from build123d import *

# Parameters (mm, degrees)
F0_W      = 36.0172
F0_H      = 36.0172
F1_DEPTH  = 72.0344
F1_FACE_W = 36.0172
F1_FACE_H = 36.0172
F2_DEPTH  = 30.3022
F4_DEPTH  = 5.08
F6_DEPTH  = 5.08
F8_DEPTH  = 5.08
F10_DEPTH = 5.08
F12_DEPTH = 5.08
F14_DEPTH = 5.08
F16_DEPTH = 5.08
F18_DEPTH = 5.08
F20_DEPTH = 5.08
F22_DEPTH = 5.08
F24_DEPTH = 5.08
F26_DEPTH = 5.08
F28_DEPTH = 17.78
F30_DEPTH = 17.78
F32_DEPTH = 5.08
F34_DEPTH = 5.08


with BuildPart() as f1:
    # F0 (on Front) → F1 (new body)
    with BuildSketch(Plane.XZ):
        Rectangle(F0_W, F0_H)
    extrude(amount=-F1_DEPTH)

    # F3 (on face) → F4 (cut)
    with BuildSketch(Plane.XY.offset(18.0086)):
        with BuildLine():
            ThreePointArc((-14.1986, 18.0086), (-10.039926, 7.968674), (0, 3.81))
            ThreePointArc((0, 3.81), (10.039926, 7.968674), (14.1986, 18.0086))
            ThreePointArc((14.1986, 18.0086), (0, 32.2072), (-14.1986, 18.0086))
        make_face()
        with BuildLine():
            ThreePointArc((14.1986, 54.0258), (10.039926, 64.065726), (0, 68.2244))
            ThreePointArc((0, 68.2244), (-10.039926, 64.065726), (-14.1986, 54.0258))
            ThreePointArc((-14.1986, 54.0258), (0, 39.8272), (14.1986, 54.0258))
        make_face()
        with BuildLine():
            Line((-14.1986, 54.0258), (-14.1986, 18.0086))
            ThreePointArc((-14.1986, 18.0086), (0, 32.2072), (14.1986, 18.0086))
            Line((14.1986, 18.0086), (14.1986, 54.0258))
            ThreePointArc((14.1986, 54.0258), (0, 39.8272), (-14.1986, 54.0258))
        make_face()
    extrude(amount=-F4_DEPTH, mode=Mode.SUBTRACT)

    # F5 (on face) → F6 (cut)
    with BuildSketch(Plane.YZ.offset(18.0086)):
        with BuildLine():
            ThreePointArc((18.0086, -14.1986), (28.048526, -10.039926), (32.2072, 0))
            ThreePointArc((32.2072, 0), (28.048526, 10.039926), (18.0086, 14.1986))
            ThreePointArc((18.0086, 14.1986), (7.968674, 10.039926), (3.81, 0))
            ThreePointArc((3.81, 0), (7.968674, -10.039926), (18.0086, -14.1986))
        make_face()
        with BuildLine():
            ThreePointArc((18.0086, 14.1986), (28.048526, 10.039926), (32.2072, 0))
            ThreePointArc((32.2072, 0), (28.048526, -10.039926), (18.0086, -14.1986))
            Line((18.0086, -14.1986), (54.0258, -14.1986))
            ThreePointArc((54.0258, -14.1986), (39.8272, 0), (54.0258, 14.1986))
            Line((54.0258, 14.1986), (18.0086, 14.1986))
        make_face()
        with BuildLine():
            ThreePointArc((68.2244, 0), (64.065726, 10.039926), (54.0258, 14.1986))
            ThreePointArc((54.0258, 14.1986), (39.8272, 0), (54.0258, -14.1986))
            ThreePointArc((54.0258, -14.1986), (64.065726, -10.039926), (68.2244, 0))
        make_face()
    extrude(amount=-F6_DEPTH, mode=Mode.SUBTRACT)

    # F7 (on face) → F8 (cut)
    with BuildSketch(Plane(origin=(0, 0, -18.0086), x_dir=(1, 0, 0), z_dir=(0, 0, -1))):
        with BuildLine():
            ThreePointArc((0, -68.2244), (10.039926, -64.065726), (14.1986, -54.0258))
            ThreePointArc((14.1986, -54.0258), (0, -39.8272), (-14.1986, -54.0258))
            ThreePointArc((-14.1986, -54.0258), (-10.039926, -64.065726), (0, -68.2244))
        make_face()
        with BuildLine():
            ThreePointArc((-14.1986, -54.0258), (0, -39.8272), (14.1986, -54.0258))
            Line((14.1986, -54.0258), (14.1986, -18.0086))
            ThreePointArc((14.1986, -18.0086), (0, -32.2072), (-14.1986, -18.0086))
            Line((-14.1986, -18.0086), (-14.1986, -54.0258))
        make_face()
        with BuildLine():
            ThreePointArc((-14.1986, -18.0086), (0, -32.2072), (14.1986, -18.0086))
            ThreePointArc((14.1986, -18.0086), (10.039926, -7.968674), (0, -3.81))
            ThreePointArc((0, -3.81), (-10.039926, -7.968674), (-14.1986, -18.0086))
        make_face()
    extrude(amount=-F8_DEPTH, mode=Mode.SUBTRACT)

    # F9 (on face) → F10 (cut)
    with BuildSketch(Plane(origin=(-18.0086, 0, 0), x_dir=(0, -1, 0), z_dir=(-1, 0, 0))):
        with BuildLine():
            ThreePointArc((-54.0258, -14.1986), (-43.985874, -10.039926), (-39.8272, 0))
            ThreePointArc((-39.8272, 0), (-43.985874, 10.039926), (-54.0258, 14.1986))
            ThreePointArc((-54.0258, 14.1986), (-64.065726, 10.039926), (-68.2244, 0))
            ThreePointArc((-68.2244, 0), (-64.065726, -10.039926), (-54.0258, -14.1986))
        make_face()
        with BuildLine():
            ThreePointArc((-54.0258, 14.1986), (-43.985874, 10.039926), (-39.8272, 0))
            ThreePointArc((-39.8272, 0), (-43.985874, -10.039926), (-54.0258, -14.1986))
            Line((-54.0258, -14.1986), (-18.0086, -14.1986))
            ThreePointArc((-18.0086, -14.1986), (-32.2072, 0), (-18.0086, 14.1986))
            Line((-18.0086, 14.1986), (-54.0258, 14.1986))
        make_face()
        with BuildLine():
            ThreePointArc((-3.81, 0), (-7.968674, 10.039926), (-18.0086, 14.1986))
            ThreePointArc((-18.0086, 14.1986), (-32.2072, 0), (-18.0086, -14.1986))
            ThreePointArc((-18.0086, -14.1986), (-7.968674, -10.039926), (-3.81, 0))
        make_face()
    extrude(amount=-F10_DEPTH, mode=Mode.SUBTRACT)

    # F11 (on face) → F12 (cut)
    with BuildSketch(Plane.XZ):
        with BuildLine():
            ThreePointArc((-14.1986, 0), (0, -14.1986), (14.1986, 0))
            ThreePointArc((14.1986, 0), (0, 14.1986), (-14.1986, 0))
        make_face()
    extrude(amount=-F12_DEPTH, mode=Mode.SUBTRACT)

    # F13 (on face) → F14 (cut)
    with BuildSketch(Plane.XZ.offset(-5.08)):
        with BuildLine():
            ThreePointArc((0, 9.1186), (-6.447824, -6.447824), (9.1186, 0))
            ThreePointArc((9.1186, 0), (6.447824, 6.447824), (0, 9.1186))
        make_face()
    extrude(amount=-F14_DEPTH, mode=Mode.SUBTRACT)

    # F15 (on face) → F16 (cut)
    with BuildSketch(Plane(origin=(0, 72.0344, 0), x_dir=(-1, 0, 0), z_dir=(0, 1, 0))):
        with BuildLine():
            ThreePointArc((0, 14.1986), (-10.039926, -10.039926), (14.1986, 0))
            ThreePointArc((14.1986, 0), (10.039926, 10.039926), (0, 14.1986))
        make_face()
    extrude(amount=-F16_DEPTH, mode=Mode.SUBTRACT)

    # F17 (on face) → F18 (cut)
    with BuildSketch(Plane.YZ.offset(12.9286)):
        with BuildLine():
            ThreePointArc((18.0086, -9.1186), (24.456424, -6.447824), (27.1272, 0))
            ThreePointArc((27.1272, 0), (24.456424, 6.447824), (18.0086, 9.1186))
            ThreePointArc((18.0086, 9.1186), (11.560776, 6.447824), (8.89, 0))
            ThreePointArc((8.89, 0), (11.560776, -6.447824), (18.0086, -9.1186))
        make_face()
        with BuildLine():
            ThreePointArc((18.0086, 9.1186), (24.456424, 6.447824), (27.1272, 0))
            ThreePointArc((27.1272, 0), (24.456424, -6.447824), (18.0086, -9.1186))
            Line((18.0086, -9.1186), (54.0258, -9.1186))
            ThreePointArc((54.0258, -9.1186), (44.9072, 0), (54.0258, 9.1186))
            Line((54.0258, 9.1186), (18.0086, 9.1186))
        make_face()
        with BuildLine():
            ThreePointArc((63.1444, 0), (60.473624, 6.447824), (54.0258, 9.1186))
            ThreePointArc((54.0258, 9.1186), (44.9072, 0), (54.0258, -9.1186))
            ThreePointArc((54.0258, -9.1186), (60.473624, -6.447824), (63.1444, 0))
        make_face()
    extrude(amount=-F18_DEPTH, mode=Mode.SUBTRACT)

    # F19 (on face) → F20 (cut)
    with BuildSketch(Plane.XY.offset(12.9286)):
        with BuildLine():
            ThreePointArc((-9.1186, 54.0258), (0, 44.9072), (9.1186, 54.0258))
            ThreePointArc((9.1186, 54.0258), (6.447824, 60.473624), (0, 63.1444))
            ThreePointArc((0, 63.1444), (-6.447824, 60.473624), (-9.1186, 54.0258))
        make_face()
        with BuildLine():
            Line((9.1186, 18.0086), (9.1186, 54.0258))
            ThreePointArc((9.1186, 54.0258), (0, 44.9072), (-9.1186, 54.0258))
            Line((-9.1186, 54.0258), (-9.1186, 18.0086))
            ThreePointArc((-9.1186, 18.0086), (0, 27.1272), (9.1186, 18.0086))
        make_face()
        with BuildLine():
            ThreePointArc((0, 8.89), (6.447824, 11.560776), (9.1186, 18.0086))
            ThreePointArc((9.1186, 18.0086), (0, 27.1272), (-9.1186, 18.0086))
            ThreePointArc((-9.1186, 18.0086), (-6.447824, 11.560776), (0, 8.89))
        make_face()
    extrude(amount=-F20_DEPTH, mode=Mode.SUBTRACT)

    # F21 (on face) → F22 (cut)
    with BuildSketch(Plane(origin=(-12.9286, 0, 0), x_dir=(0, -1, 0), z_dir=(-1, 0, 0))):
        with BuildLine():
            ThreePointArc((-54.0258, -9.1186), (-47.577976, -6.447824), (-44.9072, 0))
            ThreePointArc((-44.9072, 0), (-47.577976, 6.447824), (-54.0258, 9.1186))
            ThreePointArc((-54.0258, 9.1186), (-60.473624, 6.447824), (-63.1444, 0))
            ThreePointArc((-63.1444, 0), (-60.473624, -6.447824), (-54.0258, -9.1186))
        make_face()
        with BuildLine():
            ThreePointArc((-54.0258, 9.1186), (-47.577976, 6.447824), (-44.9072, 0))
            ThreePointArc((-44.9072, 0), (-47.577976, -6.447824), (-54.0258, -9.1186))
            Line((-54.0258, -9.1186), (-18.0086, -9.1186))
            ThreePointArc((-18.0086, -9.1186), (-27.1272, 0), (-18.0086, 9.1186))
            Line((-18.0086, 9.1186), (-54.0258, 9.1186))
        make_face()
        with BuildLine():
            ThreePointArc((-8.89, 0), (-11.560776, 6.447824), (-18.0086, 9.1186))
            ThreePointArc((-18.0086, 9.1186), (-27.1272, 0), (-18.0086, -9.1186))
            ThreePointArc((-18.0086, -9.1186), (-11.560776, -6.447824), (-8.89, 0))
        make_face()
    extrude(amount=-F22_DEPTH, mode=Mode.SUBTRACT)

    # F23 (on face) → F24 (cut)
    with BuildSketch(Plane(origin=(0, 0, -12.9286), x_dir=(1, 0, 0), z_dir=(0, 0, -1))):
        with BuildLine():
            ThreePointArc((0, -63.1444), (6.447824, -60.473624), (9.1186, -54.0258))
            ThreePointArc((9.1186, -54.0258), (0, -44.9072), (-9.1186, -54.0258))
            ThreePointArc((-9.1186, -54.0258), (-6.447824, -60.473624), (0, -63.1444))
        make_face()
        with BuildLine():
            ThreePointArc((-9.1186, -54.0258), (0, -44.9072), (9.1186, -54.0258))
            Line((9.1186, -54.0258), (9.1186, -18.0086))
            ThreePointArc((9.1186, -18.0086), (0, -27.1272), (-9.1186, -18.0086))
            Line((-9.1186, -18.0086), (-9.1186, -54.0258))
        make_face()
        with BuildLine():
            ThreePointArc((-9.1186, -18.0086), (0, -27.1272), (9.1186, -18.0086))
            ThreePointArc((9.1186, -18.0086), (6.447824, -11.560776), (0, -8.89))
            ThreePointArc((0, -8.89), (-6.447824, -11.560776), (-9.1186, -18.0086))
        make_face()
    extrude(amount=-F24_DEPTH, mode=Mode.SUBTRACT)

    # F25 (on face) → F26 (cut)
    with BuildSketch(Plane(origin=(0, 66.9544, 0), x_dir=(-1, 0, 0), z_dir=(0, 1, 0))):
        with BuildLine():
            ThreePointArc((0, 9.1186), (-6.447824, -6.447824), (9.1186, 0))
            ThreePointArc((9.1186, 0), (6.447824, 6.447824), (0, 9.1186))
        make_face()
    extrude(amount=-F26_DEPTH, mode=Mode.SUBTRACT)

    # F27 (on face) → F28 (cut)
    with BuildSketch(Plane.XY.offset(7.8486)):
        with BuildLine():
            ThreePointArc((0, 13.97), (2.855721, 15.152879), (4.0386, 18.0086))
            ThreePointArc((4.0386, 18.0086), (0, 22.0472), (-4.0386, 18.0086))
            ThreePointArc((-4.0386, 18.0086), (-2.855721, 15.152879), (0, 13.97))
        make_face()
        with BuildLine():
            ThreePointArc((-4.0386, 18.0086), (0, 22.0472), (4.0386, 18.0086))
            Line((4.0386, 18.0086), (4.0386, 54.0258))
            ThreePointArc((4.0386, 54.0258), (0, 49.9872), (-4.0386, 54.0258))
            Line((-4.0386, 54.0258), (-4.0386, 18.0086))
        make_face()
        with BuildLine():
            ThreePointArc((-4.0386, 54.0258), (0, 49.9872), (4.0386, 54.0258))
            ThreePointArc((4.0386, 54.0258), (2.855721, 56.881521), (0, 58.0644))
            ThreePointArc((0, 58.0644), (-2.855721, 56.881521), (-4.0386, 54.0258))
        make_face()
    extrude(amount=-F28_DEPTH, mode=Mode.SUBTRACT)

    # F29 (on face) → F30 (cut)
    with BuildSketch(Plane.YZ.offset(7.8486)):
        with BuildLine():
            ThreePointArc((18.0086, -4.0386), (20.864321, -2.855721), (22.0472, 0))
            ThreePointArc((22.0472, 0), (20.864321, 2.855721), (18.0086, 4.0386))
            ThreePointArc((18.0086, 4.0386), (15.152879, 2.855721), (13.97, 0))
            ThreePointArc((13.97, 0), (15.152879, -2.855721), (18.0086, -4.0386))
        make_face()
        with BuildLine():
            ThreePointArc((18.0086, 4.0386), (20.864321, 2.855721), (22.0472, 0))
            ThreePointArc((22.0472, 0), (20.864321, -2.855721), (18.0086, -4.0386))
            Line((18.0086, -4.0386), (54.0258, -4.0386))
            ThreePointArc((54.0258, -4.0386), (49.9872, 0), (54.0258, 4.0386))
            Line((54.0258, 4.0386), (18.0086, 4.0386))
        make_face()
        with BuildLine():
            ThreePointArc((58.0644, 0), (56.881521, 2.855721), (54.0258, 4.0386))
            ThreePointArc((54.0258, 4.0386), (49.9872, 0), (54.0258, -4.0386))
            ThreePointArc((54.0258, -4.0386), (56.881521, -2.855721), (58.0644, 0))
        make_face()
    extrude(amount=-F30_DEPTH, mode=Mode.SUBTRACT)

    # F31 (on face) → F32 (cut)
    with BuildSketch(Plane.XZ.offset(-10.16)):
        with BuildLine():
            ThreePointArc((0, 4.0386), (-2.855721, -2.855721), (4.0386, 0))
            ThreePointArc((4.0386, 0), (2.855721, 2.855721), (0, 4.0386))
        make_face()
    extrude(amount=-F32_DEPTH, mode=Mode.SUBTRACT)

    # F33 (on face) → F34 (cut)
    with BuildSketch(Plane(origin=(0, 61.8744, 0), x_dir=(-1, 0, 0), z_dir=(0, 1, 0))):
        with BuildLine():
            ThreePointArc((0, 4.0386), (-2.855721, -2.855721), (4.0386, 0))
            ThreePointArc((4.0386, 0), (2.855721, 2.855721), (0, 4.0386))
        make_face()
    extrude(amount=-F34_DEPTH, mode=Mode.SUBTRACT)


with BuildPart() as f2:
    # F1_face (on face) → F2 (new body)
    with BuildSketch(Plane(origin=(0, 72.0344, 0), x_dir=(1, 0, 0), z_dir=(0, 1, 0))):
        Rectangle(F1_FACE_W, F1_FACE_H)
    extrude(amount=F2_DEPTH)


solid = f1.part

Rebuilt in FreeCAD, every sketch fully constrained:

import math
import FreeCAD as App
import Part
import Sketcher
from FreeCAD import Vector
Q = App.Units.Quantity


def add_polygon(sketch, points):
    """Adds a closed chain of lines whose ends are joined by coincident constraints."""
    first, n = sketch.GeometryCount, len(points)
    for a, b in zip(points, points[1:] + points[:1]):
        sketch.addGeometry(Part.LineSegment(App.Vector(*a, 0), App.Vector(*b, 0)), False)
    for i in range(n):
        sketch.addConstraint(Sketcher.Constraint("Coincident", first + i, 2, first + (i + 1) % n, 1))

doc = App.newDocument("Part")
params = doc.addObject("Spreadsheet::Sheet", "Params")
for row, (alias, value) in enumerate([
    ("sketch1_width", "1.418 in"),
    ("pad1_length", "2.836 in"),
    ("sketch2_radius", "0.559 in"),
    ("sketch2_height", "1.418 in"),
    ("pocket1_length", "0.2 in"),
    ("sketch3_radius", "0.559 in"),
    ("sketch3_width", "1.418 in"),
    ("pocket2_length", "0.2 in"),
    ("sketch4_radius", "0.559 in"),
    ("sketch4_height", "1.418 in"),
    ("pocket3_length", "0.2 in"),
    ("sketch5_radius", "0.559 in"),
    ("sketch5_width", "1.418 in"),
    ("pocket4_length", "0.2 in"),
    ("sketch6_diameter", "1.118 in"),
    ("pocket5_length", "0.2 in"),
    ("sketch7_radius", "0.359 in"),
    ("pocket6_length", "0.2 in"),
    ("sketch8_radius", "0.559 in"),
    ("pocket7_length", "0.2 in"),
    ("sketch9_radius", "0.359 in"),
    ("sketch9_width", "1.418 in"),
    ("pocket8_length", "0.2 in"),
    ("sketch10_radius", "0.359 in"),
    ("sketch10_height", "1.418 in"),
    ("pocket9_length", "0.2 in"),
    ("sketch11_radius", "0.359 in"),
    ("sketch11_width", "1.418 in"),
    ("pocket10_length", "0.2 in"),
    ("sketch12_radius", "0.359 in"),
    ("sketch12_height", "1.418 in"),
    ("pocket11_length", "0.2 in"),
    ("sketch13_radius", "0.359 in"),
    ("pocket12_length", "0.2 in"),
    ("sketch14_radius", "0.1590001 in"),
    ("sketch14_height", "1.418 in"),
    ("pocket13_length", "0.7 in"),
    ("sketch15_radius", "0.1590001 in"),
    ("sketch15_width", "1.418 in"),
    ("pocket14_length", "0.7 in"),
    ("sketch16_radius", "0.159 in"),
    ("pocket15_length", "0.2 in"),
    ("sketch17_radius", "0.159 in"),
    ("pocket16_length", "0.2 in"),
    ("sketch18_width", "1.418 in"),
    ("pad2_length", "1.193 in"),
], start=1):
    params.set(f"A{row}", alias)
    params.set(f"B{row}", "=" + value)
    params.setAlias(f"B{row}", alias)

body = doc.addObject("PartDesign::Body", "Body")

# Sketch on XZ plane
sketch1 = doc.addObject("Sketcher::SketchObject", "Sketch")
body.addObject(sketch1)
sketch1.AttachmentSupport = (doc.XZ_Plane, [""])
sketch1.MapMode = "FlatFace"
add_polygon(sketch1, [(-18, 18), (-18, -18), (18, -18), (18, 18)])  # lines 0-3
sketch1.addConstraint(Sketcher.Constraint("Vertical", 0))
sketch1.addConstraint(Sketcher.Constraint("Horizontal", 1))
sketch1.addConstraint(Sketcher.Constraint("Vertical", 2))
sketch1.addConstraint(Sketcher.Constraint("Horizontal", 3))
sketch1.addConstraint(Sketcher.Constraint("Symmetric", 0, 2, 2, 2, -1, 1))
sketch1.addConstraint(Sketcher.Constraint("Equal", 3, 0))
sketch1.addConstraint(Sketcher.Constraint("DistanceX", 1, 1, 1, 2, Q("1.418 in")))
sketch1.setExpression("Constraints[10]", "Params.sketch1_width")
pad1 = doc.addObject("PartDesign::Pad", "Pad")
body.addObject(pad1)
pad1.Profile = sketch1
pad1.setExpression("Length", "Params.pad1_length")
pad1.Reversed = True

# Sketch on XY plane
sketch2 = doc.addObject("Sketcher::SketchObject", "Sketch001")
body.addObject(sketch2)
sketch2.AttachmentSupport = (doc.XY_Plane, [""])
sketch2.MapMode = "FlatFace"
sketch2.AttachmentOffset = App.Placement(Vector(0, 0, 0.709 * 25.4), App.Rotation())
sketch2.addGeometry(Part.ArcOfCircle(Part.Circle(Vector(0, 18, 0), Vector(0, 0, 1), 14), math.radians(-180), math.radians(-90)), False)
sketch2.addGeometry(Part.ArcOfCircle(Part.Circle(Vector(0, 18, 0), Vector(0, 0, 1), 14), math.radians(-90), math.radians(0)), False)
sketch2.addGeometry(Part.LineSegment(Vector(14, 18, 0), Vector(14, 54, 0)), False)
sketch2.addGeometry(Part.ArcOfCircle(Part.Circle(Vector(0, 54, 0), Vector(0, 0, 1), 14), math.radians(0), math.radians(90)), False)
sketch2.addGeometry(Part.ArcOfCircle(Part.Circle(Vector(0, 54, 0), Vector(0, 0, 1), 14), math.radians(90), math.radians(180)), False)
sketch2.addGeometry(Part.LineSegment(Vector(-14, 54, 0), Vector(-14, 18, 0)), False)
sketch2.addConstraint(Sketcher.Constraint("Tangent", 0, 2, 1, 1))
sketch2.addConstraint(Sketcher.Constraint("Tangent", 1, 2, 2, 1))
sketch2.addConstraint(Sketcher.Constraint("Tangent", 2, 2, 3, 1))
sketch2.addConstraint(Sketcher.Constraint("Tangent", 3, 2, 4, 1))
sketch2.addConstraint(Sketcher.Constraint("Tangent", 4, 2, 5, 1))
sketch2.addConstraint(Sketcher.Constraint("Tangent", 5, 2, 0, 1))
sketch2.addConstraint(Sketcher.Constraint("Vertical", 2))
sketch2.addConstraint(Sketcher.Constraint("Vertical", 5))
sketch2.addConstraint(Sketcher.Constraint("Equal", 0, 1))
sketch2.addConstraint(Sketcher.Constraint("Equal", 1, 3))
sketch2.addConstraint(Sketcher.Constraint("PointOnObject", 0, 3, -2))
sketch2.addConstraint(Sketcher.Constraint("PointOnObject", 0, 2, -2))
sketch2.addConstraint(Sketcher.Constraint("PointOnObject", 3, 2, -2))
sketch2.addConstraint(Sketcher.Constraint("Radius", 0, Q("0.559 in")))
sketch2.addConstraint(Sketcher.Constraint("DistanceY", 2, 1, 2, 2, Q("1.418 in")))
sketch2.addConstraint(Sketcher.Constraint("DistanceY", -1, 1, 0, 2, Q("0.15 in")))
sketch2.setExpression("Constraints[13]", "Params.sketch2_radius")
sketch2.setExpression("Constraints[14]", "Params.sketch2_height")
pocket1 = doc.addObject("PartDesign::Pocket", "Pocket")
body.addObject(pocket1)
pocket1.Profile = sketch2
pocket1.setExpression("Length", "Params.pocket1_length")

# Sketch on YZ plane
sketch3 = doc.addObject("Sketcher::SketchObject", "Sketch002")
body.addObject(sketch3)
sketch3.AttachmentSupport = (doc.YZ_Plane, [""])
sketch3.MapMode = "FlatFace"
sketch3.AttachmentOffset = App.Placement(Vector(0, 0, 0.709 * 25.4), App.Rotation())
sketch3.addGeometry(Part.ArcOfCircle(Part.Circle(Vector(18, 0, 0), Vector(0, 0, 1), 14), math.radians(90), math.radians(180)), False)
sketch3.addGeometry(Part.ArcOfCircle(Part.Circle(Vector(18, 0, 0), Vector(0, 0, 1), 14), math.radians(-180), math.radians(-90)), False)
sketch3.addGeometry(Part.LineSegment(Vector(18, -14, 0), Vector(54, -14, 0)), False)
sketch3.addGeometry(Part.ArcOfCircle(Part.Circle(Vector(54, 0, 0), Vector(0, 0, 1), 14), math.radians(-90), math.radians(0)), False)
sketch3.addGeometry(Part.ArcOfCircle(Part.Circle(Vector(54, 0, 0), Vector(0, 0, 1), 14), math.radians(0), math.radians(90)), False)
sketch3.addGeometry(Part.LineSegment(Vector(54, 14, 0), Vector(18, 14, 0)), False)
sketch3.addConstraint(Sketcher.Constraint("Tangent", 0, 2, 1, 1))
sketch3.addConstraint(Sketcher.Constraint("Tangent", 1, 2, 2, 1))
sketch3.addConstraint(Sketcher.Constraint("Tangent", 2, 2, 3, 1))
sketch3.addConstraint(Sketcher.Constraint("Tangent", 3, 2, 4, 1))
sketch3.addConstraint(Sketcher.Constraint("Tangent", 4, 2, 5, 1))
sketch3.addConstraint(Sketcher.Constraint("Tangent", 5, 2, 0, 1))
sketch3.addConstraint(Sketcher.Constraint("Horizontal", 2))
sketch3.addConstraint(Sketcher.Constraint("Horizontal", 5))
sketch3.addConstraint(Sketcher.Constraint("Equal", 0, 1))
sketch3.addConstraint(Sketcher.Constraint("Equal", 1, 3))
sketch3.addConstraint(Sketcher.Constraint("PointOnObject", 0, 3, -1))
sketch3.addConstraint(Sketcher.Constraint("PointOnObject", 0, 2, -1))
sketch3.addConstraint(Sketcher.Constraint("PointOnObject", 3, 2, -1))
sketch3.addConstraint(Sketcher.Constraint("Radius", 0, Q("0.559 in")))
sketch3.addConstraint(Sketcher.Constraint("DistanceX", 2, 1, 2, 2, Q("1.418 in")))
sketch3.addConstraint(Sketcher.Constraint("DistanceX", -1, 1, 0, 2, Q("0.15 in")))
sketch3.setExpression("Constraints[13]", "Params.sketch3_radius")
sketch3.setExpression("Constraints[14]", "Params.sketch3_width")
pocket2 = doc.addObject("PartDesign::Pocket", "Pocket001")
body.addObject(pocket2)
pocket2.Profile = sketch3
pocket2.setExpression("Length", "Params.pocket2_length")

# Sketch on XY plane
sketch4 = doc.addObject("Sketcher::SketchObject", "Sketch003")
body.addObject(sketch4)
sketch4.AttachmentSupport = (doc.XY_Plane, [""])
sketch4.MapMode = "FlatFace"
sketch4.AttachmentOffset = App.Placement(Vector(0, 0, -0.709 * 25.4), App.Rotation())
sketch4.addGeometry(Part.ArcOfCircle(Part.Circle(Vector(0, 54, 0), Vector(0, 0, 1), 14), math.radians(0), math.radians(90)), False)
sketch4.addGeometry(Part.LineSegment(Vector(14, 54, 0), Vector(14, 18, 0)), False)
sketch4.addGeometry(Part.ArcOfCircle(Part.Circle(Vector(0, 18, 0), Vector(0, 0, 1), 14), math.radians(-90), math.radians(0)), False)
sketch4.addGeometry(Part.ArcOfCircle(Part.Circle(Vector(0, 18, 0), Vector(0, 0, 1), 14), math.radians(-180), math.radians(-90)), False)
sketch4.addGeometry(Part.LineSegment(Vector(-14, 18, 0), Vector(-14, 54, 0)), False)
sketch4.addGeometry(Part.ArcOfCircle(Part.Circle(Vector(0, 54, 0), Vector(0, 0, 1), 14), math.radians(90), math.radians(180)), False)
sketch4.addConstraint(Sketcher.Constraint("Tangent", 0, 1, 1, 1))
sketch4.addConstraint(Sketcher.Constraint("Tangent", 1, 2, 2, 2))
sketch4.addConstraint(Sketcher.Constraint("Tangent", 2, 1, 3, 2))
sketch4.addConstraint(Sketcher.Constraint("Tangent", 3, 1, 4, 1))
sketch4.addConstraint(Sketcher.Constraint("Tangent", 4, 2, 5, 2))
sketch4.addConstraint(Sketcher.Constraint("Tangent", 5, 1, 0, 2))
sketch4.addConstraint(Sketcher.Constraint("Vertical", 1))
sketch4.addConstraint(Sketcher.Constraint("Vertical", 4))
sketch4.addConstraint(Sketcher.Constraint("Equal", 0, 2))
sketch4.addConstraint(Sketcher.Constraint("Equal", 2, 3))
sketch4.addConstraint(Sketcher.Constraint("PointOnObject", 0, 3, -2))
sketch4.addConstraint(Sketcher.Constraint("PointOnObject", 2, 1, -2))
sketch4.addConstraint(Sketcher.Constraint("PointOnObject", 5, 1, -2))
sketch4.addConstraint(Sketcher.Constraint("Radius", 0, Q("0.559 in")))
sketch4.addConstraint(Sketcher.Constraint("DistanceY", 1, 2, 1, 1, Q("1.418 in")))
sketch4.addConstraint(Sketcher.Constraint("DistanceY", -1, 1, 2, 1, Q("0.15 in")))
sketch4.setExpression("Constraints[13]", "Params.sketch4_radius")
sketch4.setExpression("Constraints[14]", "Params.sketch4_height")
pocket3 = doc.addObject("PartDesign::Pocket", "Pocket002")
body.addObject(pocket3)
pocket3.Profile = sketch4
pocket3.setExpression("Length", "Params.pocket3_length")
pocket3.Reversed = True

# Sketch on YZ plane
sketch5 = doc.addObject("Sketcher::SketchObject", "Sketch004")
body.addObject(sketch5)
sketch5.AttachmentSupport = (doc.YZ_Plane, [""])
sketch5.MapMode = "FlatFace"
sketch5.AttachmentOffset = App.Placement(Vector(0, 0, -0.709 * 25.4), App.Rotation())
sketch5.addGeometry(Part.ArcOfCircle(Part.Circle(Vector(54, 0, 0), Vector(0, 0, 1), 14), math.radians(0), math.radians(90)), False)
sketch5.addGeometry(Part.ArcOfCircle(Part.Circle(Vector(54, 0, 0), Vector(0, 0, 1), 14), math.radians(-90), math.radians(0)), False)
sketch5.addGeometry(Part.LineSegment(Vector(54, -14, 0), Vector(18, -14, 0)), False)
sketch5.addGeometry(Part.ArcOfCircle(Part.Circle(Vector(18, 0, 0), Vector(0, 0, 1), 14), math.radians(-180), math.radians(-90)), False)
sketch5.addGeometry(Part.ArcOfCircle(Part.Circle(Vector(18, 0, 0), Vector(0, 0, 1), 14), math.radians(90), math.radians(180)), False)
sketch5.addGeometry(Part.LineSegment(Vector(18, 14, 0), Vector(54, 14, 0)), False)
sketch5.addConstraint(Sketcher.Constraint("Tangent", 0, 1, 1, 2))
sketch5.addConstraint(Sketcher.Constraint("Tangent", 1, 1, 2, 1))
sketch5.addConstraint(Sketcher.Constraint("Tangent", 2, 2, 3, 2))
sketch5.addConstraint(Sketcher.Constraint("Tangent", 3, 1, 4, 2))
sketch5.addConstraint(Sketcher.Constraint("Tangent", 4, 1, 5, 1))
sketch5.addConstraint(Sketcher.Constraint("Tangent", 5, 2, 0, 2))
sketch5.addConstraint(Sketcher.Constraint("Horizontal", 2))
sketch5.addConstraint(Sketcher.Constraint("Horizontal", 5))
sketch5.addConstraint(Sketcher.Constraint("Equal", 0, 1))
sketch5.addConstraint(Sketcher.Constraint("Equal", 1, 3))
sketch5.addConstraint(Sketcher.Constraint("PointOnObject", 0, 3, -1))
sketch5.addConstraint(Sketcher.Constraint("PointOnObject", 0, 1, -1))
sketch5.addConstraint(Sketcher.Constraint("PointOnObject", 3, 1, -1))
sketch5.addConstraint(Sketcher.Constraint("Radius", 0, Q("0.559 in")))
sketch5.addConstraint(Sketcher.Constraint("DistanceX", 2, 2, 2, 1, Q("1.418 in")))
sketch5.addConstraint(Sketcher.Constraint("DistanceX", -1, 1, 3, 1, Q("0.15 in")))
sketch5.setExpression("Constraints[13]", "Params.sketch5_radius")
sketch5.setExpression("Constraints[14]", "Params.sketch5_width")
pocket4 = doc.addObject("PartDesign::Pocket", "Pocket003")
body.addObject(pocket4)
pocket4.Profile = sketch5
pocket4.setExpression("Length", "Params.pocket4_length")
pocket4.Reversed = True

# Sketch on XZ plane
sketch6 = doc.addObject("Sketcher::SketchObject", "Sketch005")
body.addObject(sketch6)
sketch6.AttachmentSupport = (doc.XZ_Plane, [""])
sketch6.MapMode = "FlatFace"
sketch6.addGeometry(Part.Circle(Vector(0, 0, 0), Vector(0, 0, 1), 14), False)
sketch6.addConstraint(Sketcher.Constraint("Coincident", 0, 3, -1, 1))
sketch6.addConstraint(Sketcher.Constraint("Diameter", 0, Q("1.118 in")))
sketch6.setExpression("Constraints[1]", "Params.sketch6_diameter")
pocket5 = doc.addObject("PartDesign::Pocket", "Pocket004")
body.addObject(pocket5)
pocket5.Profile = sketch6
pocket5.setExpression("Length", "Params.pocket5_length")

# Sketch on XZ plane
sketch7 = doc.addObject("Sketcher::SketchObject", "Sketch006")
body.addObject(sketch7)
sketch7.AttachmentSupport = (doc.XZ_Plane, [""])
sketch7.MapMode = "FlatFace"
sketch7.AttachmentOffset = App.Placement(Vector(0, 0, -0.2 * 25.4), App.Rotation())
sketch7.addGeometry(Part.ArcOfCircle(Part.Circle(Vector(0, 0, 0), Vector(0, 0, 1), 9), math.radians(90), math.radians(360)), False)
sketch7.addGeometry(Part.ArcOfCircle(Part.Circle(Vector(0, 0, 0), Vector(0, 0, 1), 9), math.radians(0), math.radians(90)), False)
sketch7.addConstraint(Sketcher.Constraint("Tangent", 0, 1, 1, 2))
sketch7.addConstraint(Sketcher.Constraint("Coincident", 1, 1, 0, 2))
sketch7.addConstraint(Sketcher.Constraint("Coincident", 0, 3, -1, 1))
sketch7.addConstraint(Sketcher.Constraint("PointOnObject", 0, 1, -2))
sketch7.addConstraint(Sketcher.Constraint("PointOnObject", 1, 1, -1))
sketch7.addConstraint(Sketcher.Constraint("Radius", 0, Q("0.359 in")))
sketch7.setExpression("Constraints[5]", "Params.sketch7_radius")
pocket6 = doc.addObject("PartDesign::Pocket", "Pocket005")
body.addObject(pocket6)
pocket6.Profile = sketch7
pocket6.setExpression("Length", "Params.pocket6_length")

# Sketch on XZ plane
sketch8 = doc.addObject("Sketcher::SketchObject", "Sketch007")
body.addObject(sketch8)
sketch8.AttachmentSupport = (doc.XZ_Plane, [""])
sketch8.MapMode = "FlatFace"
sketch8.AttachmentOffset = App.Placement(Vector(0, 0, -2.836 * 25.4), App.Rotation())
sketch8.addGeometry(Part.ArcOfCircle(Part.Circle(Vector(0, 0, 0), Vector(0, 0, 1), 14), math.radians(-180), math.radians(90)), False)
sketch8.addGeometry(Part.ArcOfCircle(Part.Circle(Vector(0, 0, 0), Vector(0, 0, 1), 14), math.radians(90), math.radians(180)), False)
sketch8.addConstraint(Sketcher.Constraint("Tangent", 0, 1, 1, 2))
sketch8.addConstraint(Sketcher.Constraint("Coincident", 1, 1, 0, 2))
sketch8.addConstraint(Sketcher.Constraint("Coincident", 0, 3, -1, 1))
sketch8.addConstraint(Sketcher.Constraint("PointOnObject", 0, 1, -1))
sketch8.addConstraint(Sketcher.Constraint("PointOnObject", 1, 1, -2))
sketch8.addConstraint(Sketcher.Constraint("Radius", 0, Q("0.559 in")))
sketch8.setExpression("Constraints[5]", "Params.sketch8_radius")
pocket7 = doc.addObject("PartDesign::Pocket", "Pocket006")
body.addObject(pocket7)
pocket7.Profile = sketch8
pocket7.setExpression("Length", "Params.pocket7_length")
pocket7.Reversed = True

# Sketch on YZ plane
sketch9 = doc.addObject("Sketcher::SketchObject", "Sketch008")
body.addObject(sketch9)
sketch9.AttachmentSupport = (doc.YZ_Plane, [""])
sketch9.MapMode = "FlatFace"
sketch9.AttachmentOffset = App.Placement(Vector(0, 0, 0.509 * 25.4), App.Rotation())
sketch9.addGeometry(Part.ArcOfCircle(Part.Circle(Vector(18, 0, 0), Vector(0, 0, 1), 9), math.radians(90), math.radians(180)), False)
sketch9.addGeometry(Part.ArcOfCircle(Part.Circle(Vector(18, 0, 0), Vector(0, 0, 1), 9), math.radians(180), math.radians(270)), False)
sketch9.addGeometry(Part.LineSegment(Vector(18, -9, 0), Vector(54, -9, 0)), False)
sketch9.addGeometry(Part.ArcOfCircle(Part.Circle(Vector(54, 0, 0), Vector(0, 0, 1), 9), math.radians(-90), math.radians(0)), False)
sketch9.addGeometry(Part.ArcOfCircle(Part.Circle(Vector(54, 0, 0), Vector(0, 0, 1), 9), math.radians(0), math.radians(90)), False)
sketch9.addGeometry(Part.LineSegment(Vector(54, 9, 0), Vector(18, 9, 0)), False)
sketch9.addConstraint(Sketcher.Constraint("Tangent", 0, 2, 1, 1))
sketch9.addConstraint(Sketcher.Constraint("Tangent", 1, 2, 2, 1))
sketch9.addConstraint(Sketcher.Constraint("Tangent", 2, 2, 3, 1))
sketch9.addConstraint(Sketcher.Constraint("Tangent", 3, 2, 4, 1))
sketch9.addConstraint(Sketcher.Constraint("Tangent", 4, 2, 5, 1))
sketch9.addConstraint(Sketcher.Constraint("Tangent", 5, 2, 0, 1))
sketch9.addConstraint(Sketcher.Constraint("Horizontal", 2))
sketch9.addConstraint(Sketcher.Constraint("Horizontal", 5))
sketch9.addConstraint(Sketcher.Constraint("Equal", 0, 1))
sketch9.addConstraint(Sketcher.Constraint("Equal", 1, 3))
sketch9.addConstraint(Sketcher.Constraint("PointOnObject", 0, 3, -1))
sketch9.addConstraint(Sketcher.Constraint("PointOnObject", 0, 2, -1))
sketch9.addConstraint(Sketcher.Constraint("PointOnObject", 3, 2, -1))
sketch9.addConstraint(Sketcher.Constraint("Radius", 0, Q("0.359 in")))
sketch9.addConstraint(Sketcher.Constraint("DistanceX", 2, 1, 2, 2, Q("1.418 in")))
sketch9.addConstraint(Sketcher.Constraint("DistanceX", -1, 1, 0, 2, Q("0.35 in")))
sketch9.setExpression("Constraints[13]", "Params.sketch9_radius")
sketch9.setExpression("Constraints[14]", "Params.sketch9_width")
pocket8 = doc.addObject("PartDesign::Pocket", "Pocket007")
body.addObject(pocket8)
pocket8.Profile = sketch9
pocket8.setExpression("Length", "Params.pocket8_length")

# Sketch on XY plane
sketch10 = doc.addObject("Sketcher::SketchObject", "Sketch009")
body.addObject(sketch10)
sketch10.AttachmentSupport = (doc.XY_Plane, [""])
sketch10.MapMode = "FlatFace"
sketch10.AttachmentOffset = App.Placement(Vector(0, 0, 0.509 * 25.4), App.Rotation())
sketch10.addGeometry(Part.ArcOfCircle(Part.Circle(Vector(0, 54, 0), Vector(0, 0, 1), 9), math.radians(0), math.radians(90)), False)
sketch10.addGeometry(Part.ArcOfCircle(Part.Circle(Vector(0, 54, 0), Vector(0, 0, 1), 9), math.radians(90), math.radians(180)), False)
sketch10.addGeometry(Part.LineSegment(Vector(-9, 54, 0), Vector(-9, 18, 0)), False)
sketch10.addGeometry(Part.ArcOfCircle(Part.Circle(Vector(0, 18, 0), Vector(0, 0, 1), 9), math.radians(180), math.radians(270)), False)
sketch10.addGeometry(Part.ArcOfCircle(Part.Circle(Vector(0, 18, 0), Vector(0, 0, 1), 9), math.radians(-90), math.radians(0)), False)
sketch10.addGeometry(Part.LineSegment(Vector(9, 18, 0), Vector(9, 54, 0)), False)
sketch10.addConstraint(Sketcher.Constraint("Tangent", 0, 2, 1, 1))
sketch10.addConstraint(Sketcher.Constraint("Tangent", 1, 2, 2, 1))
sketch10.addConstraint(Sketcher.Constraint("Tangent", 2, 2, 3, 1))
sketch10.addConstraint(Sketcher.Constraint("Tangent", 3, 2, 4, 1))
sketch10.addConstraint(Sketcher.Constraint("Tangent", 4, 2, 5, 1))
sketch10.addConstraint(Sketcher.Constraint("Tangent", 5, 2, 0, 1))
sketch10.addConstraint(Sketcher.Constraint("Vertical", 2))
sketch10.addConstraint(Sketcher.Constraint("Vertical", 5))
sketch10.addConstraint(Sketcher.Constraint("Equal", 0, 1))
sketch10.addConstraint(Sketcher.Constraint("Equal", 1, 3))
sketch10.addConstraint(Sketcher.Constraint("PointOnObject", 0, 3, -2))
sketch10.addConstraint(Sketcher.Constraint("PointOnObject", 0, 2, -2))
sketch10.addConstraint(Sketcher.Constraint("PointOnObject", 3, 2, -2))
sketch10.addConstraint(Sketcher.Constraint("Radius", 0, Q("0.359 in")))
sketch10.addConstraint(Sketcher.Constraint("DistanceY", 2, 2, 2, 1, Q("1.418 in")))
sketch10.addConstraint(Sketcher.Constraint("DistanceY", -1, 1, 3, 2, Q("0.35 in")))
sketch10.setExpression("Constraints[13]", "Params.sketch10_radius")
sketch10.setExpression("Constraints[14]", "Params.sketch10_height")
pocket9 = doc.addObject("PartDesign::Pocket", "Pocket008")
body.addObject(pocket9)
pocket9.Profile = sketch10
pocket9.setExpression("Length", "Params.pocket9_length")

# Sketch on YZ plane
sketch11 = doc.addObject("Sketcher::SketchObject", "Sketch010")
body.addObject(sketch11)
sketch11.AttachmentSupport = (doc.YZ_Plane, [""])
sketch11.MapMode = "FlatFace"
sketch11.AttachmentOffset = App.Placement(Vector(0, 0, -0.509 * 25.4), App.Rotation())
sketch11.addGeometry(Part.ArcOfCircle(Part.Circle(Vector(54, 0, 0), Vector(0, 0, 1), 9), math.radians(0), math.radians(90)), False)
sketch11.addGeometry(Part.ArcOfCircle(Part.Circle(Vector(54, 0, 0), Vector(0, 0, 1), 9), math.radians(-90), math.radians(0)), False)
sketch11.addGeometry(Part.LineSegment(Vector(54, -9, 0), Vector(18, -9, 0)), False)
sketch11.addGeometry(Part.ArcOfCircle(Part.Circle(Vector(18, 0, 0), Vector(0, 0, 1), 9), math.radians(180), math.radians(270)), False)
sketch11.addGeometry(Part.ArcOfCircle(Part.Circle(Vector(18, 0, 0), Vector(0, 0, 1), 9), math.radians(90), math.radians(180)), False)
sketch11.addGeometry(Part.LineSegment(Vector(18, 9, 0), Vector(54, 9, 0)), False)
sketch11.addConstraint(Sketcher.Constraint("Tangent", 0, 1, 1, 2))
sketch11.addConstraint(Sketcher.Constraint("Tangent", 1, 1, 2, 1))
sketch11.addConstraint(Sketcher.Constraint("Tangent", 2, 2, 3, 2))
sketch11.addConstraint(Sketcher.Constraint("Tangent", 3, 1, 4, 2))
sketch11.addConstraint(Sketcher.Constraint("Tangent", 4, 1, 5, 1))
sketch11.addConstraint(Sketcher.Constraint("Tangent", 5, 2, 0, 2))
sketch11.addConstraint(Sketcher.Constraint("Horizontal", 2))
sketch11.addConstraint(Sketcher.Constraint("Horizontal", 5))
sketch11.addConstraint(Sketcher.Constraint("Equal", 0, 1))
sketch11.addConstraint(Sketcher.Constraint("Equal", 1, 3))
sketch11.addConstraint(Sketcher.Constraint("PointOnObject", 0, 3, -1))
sketch11.addConstraint(Sketcher.Constraint("PointOnObject", 0, 1, -1))
sketch11.addConstraint(Sketcher.Constraint("PointOnObject", 3, 1, -1))
sketch11.addConstraint(Sketcher.Constraint("Radius", 0, Q("0.359 in")))
sketch11.addConstraint(Sketcher.Constraint("DistanceX", 2, 2, 2, 1, Q("1.418 in")))
sketch11.addConstraint(Sketcher.Constraint("DistanceX", -1, 1, 3, 1, Q("0.35 in")))
sketch11.setExpression("Constraints[13]", "Params.sketch11_radius")
sketch11.setExpression("Constraints[14]", "Params.sketch11_width")
pocket10 = doc.addObject("PartDesign::Pocket", "Pocket009")
body.addObject(pocket10)
pocket10.Profile = sketch11
pocket10.setExpression("Length", "Params.pocket10_length")
pocket10.Reversed = True

# Sketch on XY plane
sketch12 = doc.addObject("Sketcher::SketchObject", "Sketch011")
body.addObject(sketch12)
sketch12.AttachmentSupport = (doc.XY_Plane, [""])
sketch12.MapMode = "FlatFace"
sketch12.AttachmentOffset = App.Placement(Vector(0, 0, -0.509 * 25.4), App.Rotation())
sketch12.addGeometry(Part.ArcOfCircle(Part.Circle(Vector(0, 54, 0), Vector(0, 0, 1), 9), math.radians(0), math.radians(90)), False)
sketch12.addGeometry(Part.LineSegment(Vector(9, 54, 0), Vector(9, 18, 0)), False)
sketch12.addGeometry(Part.ArcOfCircle(Part.Circle(Vector(0, 18, 0), Vector(0, 0, 1), 9), math.radians(-90), math.radians(0)), False)
sketch12.addGeometry(Part.ArcOfCircle(Part.Circle(Vector(0, 18, 0), Vector(0, 0, 1), 9), math.radians(180), math.radians(270)), False)
sketch12.addGeometry(Part.LineSegment(Vector(-9, 18, 0), Vector(-9, 54, 0)), False)
sketch12.addGeometry(Part.ArcOfCircle(Part.Circle(Vector(0, 54, 0), Vector(0, 0, 1), 9), math.radians(90), math.radians(180)), False)
sketch12.addConstraint(Sketcher.Constraint("Tangent", 0, 1, 1, 1))
sketch12.addConstraint(Sketcher.Constraint("Tangent", 1, 2, 2, 2))
sketch12.addConstraint(Sketcher.Constraint("Tangent", 2, 1, 3, 2))
sketch12.addConstraint(Sketcher.Constraint("Tangent", 3, 1, 4, 1))
sketch12.addConstraint(Sketcher.Constraint("Tangent", 4, 2, 5, 2))
sketch12.addConstraint(Sketcher.Constraint("Tangent", 5, 1, 0, 2))
sketch12.addConstraint(Sketcher.Constraint("Vertical", 1))
sketch12.addConstraint(Sketcher.Constraint("Vertical", 4))
sketch12.addConstraint(Sketcher.Constraint("Equal", 0, 2))
sketch12.addConstraint(Sketcher.Constraint("Equal", 2, 3))
sketch12.addConstraint(Sketcher.Constraint("PointOnObject", 0, 3, -2))
sketch12.addConstraint(Sketcher.Constraint("PointOnObject", 2, 1, -2))
sketch12.addConstraint(Sketcher.Constraint("PointOnObject", 5, 1, -2))
sketch12.addConstraint(Sketcher.Constraint("Radius", 0, Q("0.359 in")))
sketch12.addConstraint(Sketcher.Constraint("DistanceY", 1, 2, 1, 1, Q("1.418 in")))
sketch12.addConstraint(Sketcher.Constraint("DistanceY", -1, 1, 2, 1, Q("0.35 in")))
sketch12.setExpression("Constraints[13]", "Params.sketch12_radius")
sketch12.setExpression("Constraints[14]", "Params.sketch12_height")
pocket11 = doc.addObject("PartDesign::Pocket", "Pocket010")
body.addObject(pocket11)
pocket11.Profile = sketch12
pocket11.setExpression("Length", "Params.pocket11_length")
pocket11.Reversed = True

# Sketch on XZ plane
sketch13 = doc.addObject("Sketcher::SketchObject", "Sketch012")
body.addObject(sketch13)
sketch13.AttachmentSupport = (doc.XZ_Plane, [""])
sketch13.MapMode = "FlatFace"
sketch13.AttachmentOffset = App.Placement(Vector(0, 0, -2.636 * 25.4), App.Rotation())
sketch13.addGeometry(Part.ArcOfCircle(Part.Circle(Vector(0, 0, 0), Vector(0, 0, 1), 9), math.radians(180), math.radians(450)), False)
sketch13.addGeometry(Part.ArcOfCircle(Part.Circle(Vector(0, 0, 0), Vector(0, 0, 1), 9), math.radians(90), math.radians(180)), False)
sketch13.addConstraint(Sketcher.Constraint("Tangent", 0, 1, 1, 2))
sketch13.addConstraint(Sketcher.Constraint("Coincident", 1, 1, 0, 2))
sketch13.addConstraint(Sketcher.Constraint("Coincident", 0, 3, -1, 1))
sketch13.addConstraint(Sketcher.Constraint("PointOnObject", 0, 1, -1))
sketch13.addConstraint(Sketcher.Constraint("PointOnObject", 1, 1, -2))
sketch13.addConstraint(Sketcher.Constraint("Radius", 0, Q("0.359 in")))
sketch13.setExpression("Constraints[5]", "Params.sketch13_radius")
pocket12 = doc.addObject("PartDesign::Pocket", "Pocket011")
body.addObject(pocket12)
pocket12.Profile = sketch13
pocket12.setExpression("Length", "Params.pocket12_length")
pocket12.Reversed = True

# Sketch on XY plane
sketch14 = doc.addObject("Sketcher::SketchObject", "Sketch013")
body.addObject(sketch14)
sketch14.AttachmentSupport = (doc.XY_Plane, [""])
sketch14.MapMode = "FlatFace"
sketch14.AttachmentOffset = App.Placement(Vector(0, 0, 0.309 * 25.4), App.Rotation())
sketch14.addGeometry(Part.ArcOfCircle(Part.Circle(Vector(0, 18, 0), Vector(0, 0, 1), 4), math.radians(-90), math.radians(0)), False)
sketch14.addGeometry(Part.LineSegment(Vector(4, 18, 0), Vector(4, 54, 0)), False)
sketch14.addGeometry(Part.ArcOfCircle(Part.Circle(Vector(0, 54, 0), Vector(0, 0, 1), 4), math.radians(0), math.radians(90)), False)
sketch14.addGeometry(Part.ArcOfCircle(Part.Circle(Vector(0, 54, 0), Vector(0, 0, 1), 4), math.radians(90), math.radians(180)), False)
sketch14.addGeometry(Part.LineSegment(Vector(-4, 54, 0), Vector(-4, 18, 0)), False)
sketch14.addGeometry(Part.ArcOfCircle(Part.Circle(Vector(0, 18, 0), Vector(0, 0, 1), 4), math.radians(-180), math.radians(-90)), False)
sketch14.addConstraint(Sketcher.Constraint("Tangent", 0, 2, 1, 1))
sketch14.addConstraint(Sketcher.Constraint("Tangent", 1, 2, 2, 1))
sketch14.addConstraint(Sketcher.Constraint("Tangent", 2, 2, 3, 1))
sketch14.addConstraint(Sketcher.Constraint("Tangent", 3, 2, 4, 1))
sketch14.addConstraint(Sketcher.Constraint("Tangent", 4, 2, 5, 1))
sketch14.addConstraint(Sketcher.Constraint("Tangent", 5, 2, 0, 1))
sketch14.addConstraint(Sketcher.Constraint("Vertical", 1))
sketch14.addConstraint(Sketcher.Constraint("Vertical", 4))
sketch14.addConstraint(Sketcher.Constraint("Equal", 0, 2))
sketch14.addConstraint(Sketcher.Constraint("Equal", 2, 3))
sketch14.addConstraint(Sketcher.Constraint("PointOnObject", 0, 3, -2))
sketch14.addConstraint(Sketcher.Constraint("PointOnObject", 2, 2, -2))
sketch14.addConstraint(Sketcher.Constraint("PointOnObject", 5, 2, -2))
sketch14.addConstraint(Sketcher.Constraint("Radius", 0, Q("0.1590001 in")))
sketch14.addConstraint(Sketcher.Constraint("DistanceY", 1, 1, 1, 2, Q("1.418 in")))
sketch14.addConstraint(Sketcher.Constraint("DistanceY", -1, 1, 5, 2, Q("0.55 in")))
sketch14.setExpression("Constraints[13]", "Params.sketch14_radius")
sketch14.setExpression("Constraints[14]", "Params.sketch14_height")
pocket13 = doc.addObject("PartDesign::Pocket", "Pocket012")
body.addObject(pocket13)
pocket13.Profile = sketch14
pocket13.setExpression("Length", "Params.pocket13_length")

# Sketch on YZ plane
sketch15 = doc.addObject("Sketcher::SketchObject", "Sketch014")
body.addObject(sketch15)
sketch15.AttachmentSupport = (doc.YZ_Plane, [""])
sketch15.MapMode = "FlatFace"
sketch15.AttachmentOffset = App.Placement(Vector(0, 0, 0.309 * 25.4), App.Rotation())
sketch15.addGeometry(Part.ArcOfCircle(Part.Circle(Vector(18, 0, 0), Vector(0, 0, 1), 4), math.radians(90), math.radians(180)), False)
sketch15.addGeometry(Part.ArcOfCircle(Part.Circle(Vector(18, 0, 0), Vector(0, 0, 1), 4), math.radians(-180), math.radians(-90)), False)
sketch15.addGeometry(Part.LineSegment(Vector(18, -4, 0), Vector(54, -4, 0)), False)
sketch15.addGeometry(Part.ArcOfCircle(Part.Circle(Vector(54, 0, 0), Vector(0, 0, 1), 4), math.radians(-90), math.radians(0)), False)
sketch15.addGeometry(Part.ArcOfCircle(Part.Circle(Vector(54, 0, 0), Vector(0, 0, 1), 4), math.radians(0), math.radians(90)), False)
sketch15.addGeometry(Part.LineSegment(Vector(54, 4, 0), Vector(18, 4, 0)), False)
sketch15.addConstraint(Sketcher.Constraint("Tangent", 0, 2, 1, 1))
sketch15.addConstraint(Sketcher.Constraint("Tangent", 1, 2, 2, 1))
sketch15.addConstraint(Sketcher.Constraint("Tangent", 2, 2, 3, 1))
sketch15.addConstraint(Sketcher.Constraint("Tangent", 3, 2, 4, 1))
sketch15.addConstraint(Sketcher.Constraint("Tangent", 4, 2, 5, 1))
sketch15.addConstraint(Sketcher.Constraint("Tangent", 5, 2, 0, 1))
sketch15.addConstraint(Sketcher.Constraint("Horizontal", 2))
sketch15.addConstraint(Sketcher.Constraint("Horizontal", 5))
sketch15.addConstraint(Sketcher.Constraint("Equal", 0, 1))
sketch15.addConstraint(Sketcher.Constraint("Equal", 1, 3))
sketch15.addConstraint(Sketcher.Constraint("PointOnObject", 0, 3, -1))
sketch15.addConstraint(Sketcher.Constraint("PointOnObject", 0, 2, -1))
sketch15.addConstraint(Sketcher.Constraint("PointOnObject", 3, 2, -1))
sketch15.addConstraint(Sketcher.Constraint("Radius", 0, Q("0.1590001 in")))
sketch15.addConstraint(Sketcher.Constraint("DistanceX", 2, 1, 2, 2, Q("1.418 in")))
sketch15.addConstraint(Sketcher.Constraint("DistanceX", -1, 1, 0, 2, Q("0.55 in")))
sketch15.setExpression("Constraints[13]", "Params.sketch15_radius")
sketch15.setExpression("Constraints[14]", "Params.sketch15_width")
pocket14 = doc.addObject("PartDesign::Pocket", "Pocket013")
body.addObject(pocket14)
pocket14.Profile = sketch15
pocket14.setExpression("Length", "Params.pocket14_length")

# Sketch on XZ plane
sketch16 = doc.addObject("Sketcher::SketchObject", "Sketch015")
body.addObject(sketch16)
sketch16.AttachmentSupport = (doc.XZ_Plane, [""])
sketch16.MapMode = "FlatFace"
sketch16.AttachmentOffset = App.Placement(Vector(0, 0, -0.4 * 25.4), App.Rotation())
sketch16.addGeometry(Part.ArcOfCircle(Part.Circle(Vector(0, 0, 0), Vector(0, 0, 1), 4), math.radians(90), math.radians(360)), False)
sketch16.addGeometry(Part.ArcOfCircle(Part.Circle(Vector(0, 0, 0), Vector(0, 0, 1), 4), math.radians(0), math.radians(90)), False)
sketch16.addConstraint(Sketcher.Constraint("Tangent", 0, 1, 1, 2))
sketch16.addConstraint(Sketcher.Constraint("Coincident", 1, 1, 0, 2))
sketch16.addConstraint(Sketcher.Constraint("Coincident", 0, 3, -1, 1))
sketch16.addConstraint(Sketcher.Constraint("PointOnObject", 0, 1, -2))
sketch16.addConstraint(Sketcher.Constraint("PointOnObject", 1, 1, -1))
sketch16.addConstraint(Sketcher.Constraint("Radius", 0, Q("0.159 in")))
sketch16.setExpression("Constraints[5]", "Params.sketch16_radius")
pocket15 = doc.addObject("PartDesign::Pocket", "Pocket014")
body.addObject(pocket15)
pocket15.Profile = sketch16
pocket15.setExpression("Length", "Params.pocket15_length")

# Sketch on XZ plane
sketch17 = doc.addObject("Sketcher::SketchObject", "Sketch016")
body.addObject(sketch17)
sketch17.AttachmentSupport = (doc.XZ_Plane, [""])
sketch17.MapMode = "FlatFace"
sketch17.AttachmentOffset = App.Placement(Vector(0, 0, -2.436 * 25.4), App.Rotation())
sketch17.addGeometry(Part.ArcOfCircle(Part.Circle(Vector(0, 0, 0), Vector(0, 0, 1), 4), math.radians(-180), math.radians(90)), False)
sketch17.addGeometry(Part.ArcOfCircle(Part.Circle(Vector(0, 0, 0), Vector(0, 0, 1), 4), math.radians(90), math.radians(180)), False)
sketch17.addConstraint(Sketcher.Constraint("Tangent", 0, 1, 1, 2))
sketch17.addConstraint(Sketcher.Constraint("Coincident", 1, 1, 0, 2))
sketch17.addConstraint(Sketcher.Constraint("Coincident", 0, 3, -1, 1))
sketch17.addConstraint(Sketcher.Constraint("PointOnObject", 0, 1, -1))
sketch17.addConstraint(Sketcher.Constraint("PointOnObject", 1, 1, -2))
sketch17.addConstraint(Sketcher.Constraint("Radius", 0, Q("0.159 in")))
sketch17.setExpression("Constraints[5]", "Params.sketch17_radius")
pocket16 = doc.addObject("PartDesign::Pocket", "Pocket015")
body.addObject(pocket16)
pocket16.Profile = sketch17
pocket16.setExpression("Length", "Params.pocket16_length")
pocket16.Reversed = True
body2 = doc.addObject("PartDesign::Body", "Body001")

# Sketch on XZ plane
sketch18 = doc.addObject("Sketcher::SketchObject", "Sketch017")
body2.addObject(sketch18)
sketch18.AttachmentSupport = (doc.getObject("XZ_Plane001"), [""])
sketch18.MapMode = "FlatFace"
sketch18.AttachmentOffset = App.Placement(Vector(0, 0, -2.836 * 25.4), App.Rotation())
add_polygon(sketch18, [(-18, -18), (-18, 18), (18, 18), (18, -18)])  # lines 0-3
sketch18.addConstraint(Sketcher.Constraint("Vertical", 0))
sketch18.addConstraint(Sketcher.Constraint("Horizontal", 1))
sketch18.addConstraint(Sketcher.Constraint("Vertical", 2))
sketch18.addConstraint(Sketcher.Constraint("Horizontal", 3))
sketch18.addConstraint(Sketcher.Constraint("Symmetric", 0, 2, 2, 2, -1, 1))
sketch18.addConstraint(Sketcher.Constraint("Equal", 3, 0))
sketch18.addConstraint(Sketcher.Constraint("DistanceX", 1, 1, 1, 2, Q("1.418 in")))
sketch18.setExpression("Constraints[10]", "Params.sketch18_width")
pad2 = doc.addObject("PartDesign::Pad", "Pad001")
body2.addObject(pad2)
pad2.Profile = sketch18
pad2.setExpression("Length", "Params.pad2_length")
pad2.Reversed = True
body2.Visibility = False

doc.recompute()
